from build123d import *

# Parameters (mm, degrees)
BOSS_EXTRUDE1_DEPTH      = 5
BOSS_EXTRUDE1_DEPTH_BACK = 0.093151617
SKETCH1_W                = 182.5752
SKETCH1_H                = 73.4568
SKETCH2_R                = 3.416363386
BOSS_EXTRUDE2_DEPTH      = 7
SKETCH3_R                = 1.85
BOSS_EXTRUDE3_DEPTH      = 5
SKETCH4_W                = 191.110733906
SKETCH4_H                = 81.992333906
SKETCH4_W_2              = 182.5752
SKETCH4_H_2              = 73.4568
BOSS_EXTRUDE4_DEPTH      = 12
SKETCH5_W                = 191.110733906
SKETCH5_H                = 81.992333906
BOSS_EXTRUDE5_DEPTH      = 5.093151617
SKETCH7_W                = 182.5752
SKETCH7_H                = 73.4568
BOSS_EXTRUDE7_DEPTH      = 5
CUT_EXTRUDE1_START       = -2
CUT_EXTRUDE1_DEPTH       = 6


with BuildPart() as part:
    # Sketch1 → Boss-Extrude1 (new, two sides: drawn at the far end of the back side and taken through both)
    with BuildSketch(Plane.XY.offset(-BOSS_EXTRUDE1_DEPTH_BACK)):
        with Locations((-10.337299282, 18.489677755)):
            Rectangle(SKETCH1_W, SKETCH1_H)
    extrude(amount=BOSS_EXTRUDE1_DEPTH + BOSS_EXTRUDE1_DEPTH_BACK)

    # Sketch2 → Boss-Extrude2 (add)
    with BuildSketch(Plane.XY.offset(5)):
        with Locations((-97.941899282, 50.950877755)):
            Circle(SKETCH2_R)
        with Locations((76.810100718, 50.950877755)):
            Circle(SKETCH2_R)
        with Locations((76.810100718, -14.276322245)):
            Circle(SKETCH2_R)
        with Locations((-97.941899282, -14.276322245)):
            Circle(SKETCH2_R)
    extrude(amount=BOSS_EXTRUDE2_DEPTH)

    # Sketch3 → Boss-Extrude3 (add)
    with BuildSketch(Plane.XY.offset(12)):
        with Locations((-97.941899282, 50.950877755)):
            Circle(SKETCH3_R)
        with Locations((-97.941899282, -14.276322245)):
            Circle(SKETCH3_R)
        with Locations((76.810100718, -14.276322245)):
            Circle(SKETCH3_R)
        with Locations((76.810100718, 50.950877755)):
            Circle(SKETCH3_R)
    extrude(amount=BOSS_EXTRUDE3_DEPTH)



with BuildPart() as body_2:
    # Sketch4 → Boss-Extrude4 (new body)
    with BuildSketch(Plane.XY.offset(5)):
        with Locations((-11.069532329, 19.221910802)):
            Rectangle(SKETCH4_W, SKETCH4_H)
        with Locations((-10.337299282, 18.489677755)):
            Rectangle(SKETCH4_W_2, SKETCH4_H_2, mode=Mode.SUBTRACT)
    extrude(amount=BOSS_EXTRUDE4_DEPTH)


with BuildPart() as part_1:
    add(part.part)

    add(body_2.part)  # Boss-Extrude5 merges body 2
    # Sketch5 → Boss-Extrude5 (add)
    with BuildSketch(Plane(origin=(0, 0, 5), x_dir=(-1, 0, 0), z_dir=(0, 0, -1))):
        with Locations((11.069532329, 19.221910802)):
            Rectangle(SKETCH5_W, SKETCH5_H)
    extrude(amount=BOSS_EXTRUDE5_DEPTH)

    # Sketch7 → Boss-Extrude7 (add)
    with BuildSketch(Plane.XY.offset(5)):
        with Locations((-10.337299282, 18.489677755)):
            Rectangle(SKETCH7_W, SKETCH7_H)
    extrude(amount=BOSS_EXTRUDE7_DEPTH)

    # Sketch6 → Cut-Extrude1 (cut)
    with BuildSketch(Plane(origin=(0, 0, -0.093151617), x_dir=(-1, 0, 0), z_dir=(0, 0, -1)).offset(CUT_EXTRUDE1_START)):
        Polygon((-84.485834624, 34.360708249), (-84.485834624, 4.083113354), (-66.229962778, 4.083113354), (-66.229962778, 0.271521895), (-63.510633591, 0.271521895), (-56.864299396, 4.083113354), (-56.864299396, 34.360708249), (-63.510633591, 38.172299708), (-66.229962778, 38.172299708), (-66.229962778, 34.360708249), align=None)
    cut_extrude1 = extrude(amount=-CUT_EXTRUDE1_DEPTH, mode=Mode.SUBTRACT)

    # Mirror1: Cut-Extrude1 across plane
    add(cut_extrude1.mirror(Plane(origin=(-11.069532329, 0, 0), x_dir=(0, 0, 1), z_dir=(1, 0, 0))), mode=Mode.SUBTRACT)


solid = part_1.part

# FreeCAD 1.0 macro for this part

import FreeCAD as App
import Part
import Sketcher
from FreeCAD import Vector


def add_polygon(sketch, points):
    """Adds a closed chain of lines whose ends are joined by coincident constraints."""
    first, n = sketch.GeometryCount, len(points)
    for a, b in zip(points, points[1:] + points[:1]):
        sketch.addGeometry(Part.LineSegment(App.Vector(*a, 0), App.Vector(*b, 0)), False)
    for i in range(n):
        sketch.addConstraint(Sketcher.Constraint("Coincident", first + i, 2, first + (i + 1) % n, 1))

doc = App.newDocument("Part")
body = doc.addObject("PartDesign::Body", "Body")

sketch1 = doc.addObject("Sketcher::SketchObject", "Sketch")
body.addObject(sketch1)
sketch1.AttachmentSupport = (doc.XY_Plane, [""])
sketch1.MapMode = "FlatFace"
add_polygon(sketch1, [(-102, 55), (-102, -18), (81, -18), (81, 55)])
sketch1.addConstraint(Sketcher.Constraint("Vertical", 0))
sketch1.addConstraint(Sketcher.Constraint("Horizontal", 1))
sketch1.addConstraint(Sketcher.Constraint("Vertical", 2))
sketch1.addConstraint(Sketcher.Constraint("Horizontal", 3))
sketch1.addConstraint(Sketcher.Constraint("DistanceX", 1, 1, 1, 2, 182.5752))
sketch1.addConstraint(Sketcher.Constraint("DistanceY", 0, 2, 0, 1, 73.4568))
sketch1.addConstraint(Sketcher.Constraint("DistanceX", 0, 2, -1, 1, 101.624899))
sketch1.addConstraint(Sketcher.Constraint("DistanceY", 0, 2, -1, 1, 18.238722))
pad1 = doc.addObject("PartDesign::Pad", "Pad")
body.addObject(pad1)
pad1.Profile = sketch1
pad1.Type = "TwoLengths"
pad1.Length = 5
pad1.Length2 = 0.093152

sketch2 = doc.addObject("Sketcher::SketchObject", "Sketch001")
body.addObject(sketch2)
sketch2.AttachmentSupport = (doc.XY_Plane, [""])
sketch2.MapMode = "FlatFace"
sketch2.AttachmentOffset = App.Placement(Vector(0, 0, 5), App.Rotation())
sketch2.addGeometry(Part.Circle(Vector(-97.9, 51, 0), Vector(0, 0, 1), 3.4), False)
sketch2.addGeometry(Part.Circle(Vector(76.8, 51, 0), Vector(0, 0, 1), 3.4), False)
sketch2.addGeometry(Part.Circle(Vector(76.8, -14.3, 0), Vector(0, 0, 1), 3.4), False)
sketch2.addGeometry(Part.Circle(Vector(-97.9, -14.3, 0), Vector(0, 0, 1), 3.4), False)
sketch2.addConstraint(Sketcher.Constraint("Equal", 0, 1))
sketch2.addConstraint(Sketcher.Constraint("Equal", 1, 2))
sketch2.addConstraint(Sketcher.Constraint("Equal", 2, 3))
sketch2.addConstraint(Sketcher.Constraint("Horizontal", 0, 3, 1, 3))
sketch2.addConstraint(Sketcher.Constraint("Horizontal", 2, 3, 3, 3))
sketch2.addConstraint(Sketcher.Constraint("Vertical", 1, 3, 2, 3))
sketch2.addConstraint(Sketcher.Constraint("Vertical", 0, 3, 3, 3))
sketch2.addConstraint(Sketcher.Constraint("Diameter", 0, 6.832727))
sketch2.addConstraint(Sketcher.Constraint("DistanceX", 0, 3, 1, 3, 174.752))
sketch2.addConstraint(Sketcher.Constraint("DistanceX", 0, 3, -1, 1, 97.941899))
sketch2.addConstraint(Sketcher.Constraint("DistanceY", 2, 3, 1, 3, 65.2272))
sketch2.addConstraint(Sketcher.Constraint("DistanceY", -1, 1, 0, 3, 50.950878))
pad2 = doc.addObject("PartDesign::Pad", "Pad001")
body.addObject(pad2)
pad2.Profile = sketch2
pad2.Length = 7

sketch3 = doc.addObject("Sketcher::SketchObject", "Sketch002")
body.addObject(sketch3)
sketch3.AttachmentSupport = (doc.XY_Plane, [""])
sketch3.MapMode = "FlatFace"
sketch3.AttachmentOffset = App.Placement(Vector(0, 0, 12), App.Rotation())
sketch3.addGeometry(Part.Circle(Vector(-97.9, 51, 0), Vector(0, 0, 1), 1.9), False)
sketch3.addGeometry(Part.Circle(Vector(-97.9, -14.3, 0), Vector(0, 0, 1), 1.9), False)
sketch3.addGeometry(Part.Circle(Vector(76.8, -14.3, 0), Vector(0, 0, 1), 1.9), False)
sketch3.addGeometry(Part.Circle(Vector(76.8, 51, 0), Vector(0, 0, 1), 1.9), False)
sketch3.addConstraint(Sketcher.Constraint("Equal", 0, 1))
sketch3.addConstraint(Sketcher.Constraint("Equal", 1, 2))
sketch3.addConstraint(Sketcher.Constraint("Equal", 2, 3))
sketch3.addConstraint(Sketcher.Constraint("Horizontal", 1, 3, 2, 3))
sketch3.addConstraint(Sketcher.Constraint("Horizontal", 0, 3, 3, 3))
sketch3.addConstraint(Sketcher.Constraint("Vertical", 0, 3, 1, 3))
sketch3.addConstraint(Sketcher.Constraint("Vertical", 2, 3, 3, 3))
sketch3.addConstraint(Sketcher.Constraint("Diameter", 0, 3.7))
sketch3.addConstraint(Sketcher.Constraint("DistanceX", 1, 3, 2, 3, 174.752))
sketch3.addConstraint(Sketcher.Constraint("DistanceX", 0, 3, -1, 1, 97.941899))
sketch3.addConstraint(Sketcher.Constraint("DistanceY", 1, 3, 0, 3, 65.2272))
sketch3.addConstraint(Sketcher.Constraint("DistanceY", -1, 1, 0, 3, 50.950878))
pad3 = doc.addObject("PartDesign::Pad", "Pad002")
body.addObject(pad3)
pad3.Profile = sketch3
pad3.Length = 5
body2 = doc.addObject("PartDesign::Body", "Body001")

sketch4 = doc.addObject("Sketcher::SketchObject", "Sketch003")
body2.addObject(sketch4)
sketch4.AttachmentSupport = (doc.getObject("XY_Plane001"), [""])
sketch4.MapMode = "FlatFace"
sketch4.AttachmentOffset = App.Placement(Vector(0, 0, 5), App.Rotation())
add_polygon(sketch4, [(-107, 60), (-107, -22), (84, -22), (84, 60)])
add_polygon(sketch4, [(81, -18), (-102, -18), (-102, 55), (81, 55)])
sketch4.addConstraint(Sketcher.Constraint("Vertical", 0))
sketch4.addConstraint(Sketcher.Constraint("Horizontal", 1))
sketch4.addConstraint(Sketcher.Constraint("Vertical", 2))
sketch4.addConstraint(Sketcher.Constraint("Horizontal", 3))
sketch4.addConstraint(Sketcher.Constraint("Horizontal", 4))
sketch4.addConstraint(Sketcher.Constraint("Vertical", 5))
sketch4.addConstraint(Sketcher.Constraint("Horizontal", 6))
sketch4.addConstraint(Sketcher.Constraint("Vertical", 7))
sketch4.addConstraint(Sketcher.Constraint("DistanceX", 0, 2, 4, 2, 5.0))
sketch4.addConstraint(Sketcher.Constraint("DistanceY", 5, 2, 3, 2, 5.0))
sketch4.addConstraint(Sketcher.Constraint("DistanceX", 4, 2, 4, 1, 182.5752))
sketch4.addConstraint(Sketcher.Constraint("DistanceY", 5, 1, 5, 2, 73.4568))
sketch4.addConstraint(Sketcher.Constraint("DistanceX", 0, 2, -1, 1, 106.624899))
sketch4.addConstraint(Sketcher.Constraint("DistanceX", 1, 1, 1, 2, 191.110734))
sketch4.addConstraint(Sketcher.Constraint("DistanceY", 0, 2, 0, 1, 81.992334))
sketch4.addConstraint(Sketcher.Constraint("DistanceY", 0, 2, -1, 1, 21.774256))
pad4 = doc.addObject("PartDesign::Pad", "Pad003")
body2.addObject(pad4)
pad4.Profile = sketch4
pad4.Length = 12
body.AllowCompound = True
doc.recompute()

boolean = doc.addObject("PartDesign::Boolean", "Boolean")
body.addObject(boolean)
boolean.Type = "Fuse"
boolean.addObjects([body2])

sketch5 = doc.addObject("Sketcher::SketchObject", "Sketch004")
body.addObject(sketch5)
sketch5.AttachmentSupport = (doc.XY_Plane, [""])
sketch5.MapMode = "FlatFace"
sketch5.AttachmentOffset = App.Placement(Vector(0, 0, 5), App.Rotation())
add_polygon(sketch5, [(84, 60), (84, -22), (-107, -22), (-107, 60)])
sketch5.addConstraint(Sketcher.Constraint("Vertical", 0))
sketch5.addConstraint(Sketcher.Constraint("Horizontal", 1))
sketch5.addConstraint(Sketcher.Constraint("Vertical", 2))
sketch5.addConstraint(Sketcher.Constraint("Horizontal", 3))
sketch5.addConstraint(Sketcher.Constraint("DistanceX", 1, 2, -1, 1, 106.624899))
sketch5.addConstraint(Sketcher.Constraint("DistanceX", 1, 2, 1, 1, 191.110734))
sketch5.addConstraint(Sketcher.Constraint("DistanceY", 0, 2, 0, 1, 81.992334))
sketch5.addConstraint(Sketcher.Constraint("DistanceY", 0, 2, -1, 1, 21.774256))
pad5 = doc.addObject("PartDesign::Pad", "Pad004")
body.addObject(pad5)
pad5.Profile = sketch5
pad5.Length = 5.093152
pad5.Reversed = True

sketch6 = doc.addObject("Sketcher::SketchObject", "Sketch005")
body.addObject(sketch6)
sketch6.AttachmentSupport = (doc.XY_Plane, [""])
sketch6.MapMode = "FlatFace"
sketch6.AttachmentOffset = App.Placement(Vector(0, 0, 5), App.Rotation())
add_polygon(sketch6, [(-102, 55), (-102, -18), (81, -18), (81, 55)])
sketch6.addConstraint(Sketcher.Constraint("Vertical", 0))
sketch6.addConstraint(Sketcher.Constraint("Horizontal", 1))
sketch6.addConstraint(Sketcher.Constraint("Vertical", 2))
sketch6.addConstraint(Sketcher.Constraint("Horizontal", 3))
sketch6.addConstraint(Sketcher.Constraint("DistanceX", 1, 1, 1, 2, 182.5752))
sketch6.addConstraint(Sketcher.Constraint("DistanceY", 0, 2, 0, 1, 73.4568))
sketch6.addConstraint(Sketcher.Constraint("DistanceX", 0, 2, -1, 1, 101.624899))
sketch6.addConstraint(Sketcher.Constraint("DistanceY", 0, 2, -1, 1, 18.238722))
pad6 = doc.addObject("PartDesign::Pad", "Pad005")
body.addObject(pad6)
pad6.Profile = sketch6
pad6.Length = 5

sketch7 = doc.addObject("Sketcher::SketchObject", "Sketch006")
body.addObject(sketch7)
sketch7.AttachmentSupport = (doc.XY_Plane, [""])
sketch7.MapMode = "FlatFace"
sketch7.AttachmentOffset = App.Placement(Vector(0, 0, 1.906848), App.Rotation())
add_polygon(sketch7, [(84.5, 34.4), (84.5, 4.1), (66.2, 4.1), (66.2, 0.3), (63.5, 0.3), (56.9, 4.1), (56.9, 34.4), (63.5, 38.2), (66.2, 38.2), (66.2, 34.4)])
sketch7.addConstraint(Sketcher.Constraint("Vertical", 0))
sketch7.addConstraint(Sketcher.Constraint("Horizontal", 1))
sketch7.addConstraint(Sketcher.Constraint("Vertical", 2))
sketch7.addConstraint(Sketcher.Constraint("Horizontal", 3))
sketch7.addConstraint(Sketcher.Constraint("Vertical", 5))
sketch7.addConstraint(Sketcher.Constraint("Horizontal", 7))
sketch7.addConstraint(Sketcher.Constraint("Vertical", 8))
sketch7.addConstraint(Sketcher.Constraint("Horizontal", 9))
sketch7.addConstraint(Sketcher.Constraint("Horizontal", 1, 2, 4, 2))
sketch7.addConstraint(Sketcher.Constraint("Horizontal", 5, 2, 8, 2))
sketch7.addConstraint(Sketcher.Constraint("Vertical", 3, 2, 6, 2))
sketch7.addConstraint(Sketcher.Constraint("Vertical", 2, 2, 7, 2))
sketch7.addConstraint(Sketcher.Constraint("Equal", 2, 8))
sketch7.addConstraint(Sketcher.Constraint("DistanceX", 1, 2, 1, 1, 18.255872))
sketch7.addConstraint(Sketcher.Constraint("DistanceX", 3, 2, 3, 1, 2.719329))
sketch7.addConstraint(Sketcher.Constraint("DistanceY", 2, 2, 2, 1, 3.811591))
sketch7.addConstraint(Sketcher.Constraint("DistanceX", -1, 1, 4, 2, 56.864299))
sketch7.addConstraint(Sketcher.Constraint("DistanceY", -1, 1, 6, 2, 38.1723))
sketch7.addConstraint(Sketcher.Constraint("DistanceY", 0, 2, 0, 1, 30.277595))
sketch7.addConstraint(Sketcher.Constraint("Distance", 4, 7.661722))
pocket1 = doc.addObject("PartDesign::Pocket", "Pocket")
body.addObject(pocket1)
pocket1.Profile = sketch7
pocket1.Length = 6
pocket1.Reversed = True
doc.recompute()

datumplane = doc.addObject("PartDesign::Plane", "DatumPlane")
body.addObject(datumplane)
datumplane.AttachmentSupport = (doc.YZ_Plane, [""])
datumplane.MapMode = "FlatFace"
datumplane.AttachmentOffset = App.Placement(Vector(0, 0, -11.069532), App.Rotation())
mirrored = doc.addObject("PartDesign::Mirrored", "Mirrored")
body.addObject(mirrored)
mirrored.Originals = [pocket1]
mirrored.MirrorPlane = (datumplane, [""])
body.Tip = mirrored

doc.recompute()
